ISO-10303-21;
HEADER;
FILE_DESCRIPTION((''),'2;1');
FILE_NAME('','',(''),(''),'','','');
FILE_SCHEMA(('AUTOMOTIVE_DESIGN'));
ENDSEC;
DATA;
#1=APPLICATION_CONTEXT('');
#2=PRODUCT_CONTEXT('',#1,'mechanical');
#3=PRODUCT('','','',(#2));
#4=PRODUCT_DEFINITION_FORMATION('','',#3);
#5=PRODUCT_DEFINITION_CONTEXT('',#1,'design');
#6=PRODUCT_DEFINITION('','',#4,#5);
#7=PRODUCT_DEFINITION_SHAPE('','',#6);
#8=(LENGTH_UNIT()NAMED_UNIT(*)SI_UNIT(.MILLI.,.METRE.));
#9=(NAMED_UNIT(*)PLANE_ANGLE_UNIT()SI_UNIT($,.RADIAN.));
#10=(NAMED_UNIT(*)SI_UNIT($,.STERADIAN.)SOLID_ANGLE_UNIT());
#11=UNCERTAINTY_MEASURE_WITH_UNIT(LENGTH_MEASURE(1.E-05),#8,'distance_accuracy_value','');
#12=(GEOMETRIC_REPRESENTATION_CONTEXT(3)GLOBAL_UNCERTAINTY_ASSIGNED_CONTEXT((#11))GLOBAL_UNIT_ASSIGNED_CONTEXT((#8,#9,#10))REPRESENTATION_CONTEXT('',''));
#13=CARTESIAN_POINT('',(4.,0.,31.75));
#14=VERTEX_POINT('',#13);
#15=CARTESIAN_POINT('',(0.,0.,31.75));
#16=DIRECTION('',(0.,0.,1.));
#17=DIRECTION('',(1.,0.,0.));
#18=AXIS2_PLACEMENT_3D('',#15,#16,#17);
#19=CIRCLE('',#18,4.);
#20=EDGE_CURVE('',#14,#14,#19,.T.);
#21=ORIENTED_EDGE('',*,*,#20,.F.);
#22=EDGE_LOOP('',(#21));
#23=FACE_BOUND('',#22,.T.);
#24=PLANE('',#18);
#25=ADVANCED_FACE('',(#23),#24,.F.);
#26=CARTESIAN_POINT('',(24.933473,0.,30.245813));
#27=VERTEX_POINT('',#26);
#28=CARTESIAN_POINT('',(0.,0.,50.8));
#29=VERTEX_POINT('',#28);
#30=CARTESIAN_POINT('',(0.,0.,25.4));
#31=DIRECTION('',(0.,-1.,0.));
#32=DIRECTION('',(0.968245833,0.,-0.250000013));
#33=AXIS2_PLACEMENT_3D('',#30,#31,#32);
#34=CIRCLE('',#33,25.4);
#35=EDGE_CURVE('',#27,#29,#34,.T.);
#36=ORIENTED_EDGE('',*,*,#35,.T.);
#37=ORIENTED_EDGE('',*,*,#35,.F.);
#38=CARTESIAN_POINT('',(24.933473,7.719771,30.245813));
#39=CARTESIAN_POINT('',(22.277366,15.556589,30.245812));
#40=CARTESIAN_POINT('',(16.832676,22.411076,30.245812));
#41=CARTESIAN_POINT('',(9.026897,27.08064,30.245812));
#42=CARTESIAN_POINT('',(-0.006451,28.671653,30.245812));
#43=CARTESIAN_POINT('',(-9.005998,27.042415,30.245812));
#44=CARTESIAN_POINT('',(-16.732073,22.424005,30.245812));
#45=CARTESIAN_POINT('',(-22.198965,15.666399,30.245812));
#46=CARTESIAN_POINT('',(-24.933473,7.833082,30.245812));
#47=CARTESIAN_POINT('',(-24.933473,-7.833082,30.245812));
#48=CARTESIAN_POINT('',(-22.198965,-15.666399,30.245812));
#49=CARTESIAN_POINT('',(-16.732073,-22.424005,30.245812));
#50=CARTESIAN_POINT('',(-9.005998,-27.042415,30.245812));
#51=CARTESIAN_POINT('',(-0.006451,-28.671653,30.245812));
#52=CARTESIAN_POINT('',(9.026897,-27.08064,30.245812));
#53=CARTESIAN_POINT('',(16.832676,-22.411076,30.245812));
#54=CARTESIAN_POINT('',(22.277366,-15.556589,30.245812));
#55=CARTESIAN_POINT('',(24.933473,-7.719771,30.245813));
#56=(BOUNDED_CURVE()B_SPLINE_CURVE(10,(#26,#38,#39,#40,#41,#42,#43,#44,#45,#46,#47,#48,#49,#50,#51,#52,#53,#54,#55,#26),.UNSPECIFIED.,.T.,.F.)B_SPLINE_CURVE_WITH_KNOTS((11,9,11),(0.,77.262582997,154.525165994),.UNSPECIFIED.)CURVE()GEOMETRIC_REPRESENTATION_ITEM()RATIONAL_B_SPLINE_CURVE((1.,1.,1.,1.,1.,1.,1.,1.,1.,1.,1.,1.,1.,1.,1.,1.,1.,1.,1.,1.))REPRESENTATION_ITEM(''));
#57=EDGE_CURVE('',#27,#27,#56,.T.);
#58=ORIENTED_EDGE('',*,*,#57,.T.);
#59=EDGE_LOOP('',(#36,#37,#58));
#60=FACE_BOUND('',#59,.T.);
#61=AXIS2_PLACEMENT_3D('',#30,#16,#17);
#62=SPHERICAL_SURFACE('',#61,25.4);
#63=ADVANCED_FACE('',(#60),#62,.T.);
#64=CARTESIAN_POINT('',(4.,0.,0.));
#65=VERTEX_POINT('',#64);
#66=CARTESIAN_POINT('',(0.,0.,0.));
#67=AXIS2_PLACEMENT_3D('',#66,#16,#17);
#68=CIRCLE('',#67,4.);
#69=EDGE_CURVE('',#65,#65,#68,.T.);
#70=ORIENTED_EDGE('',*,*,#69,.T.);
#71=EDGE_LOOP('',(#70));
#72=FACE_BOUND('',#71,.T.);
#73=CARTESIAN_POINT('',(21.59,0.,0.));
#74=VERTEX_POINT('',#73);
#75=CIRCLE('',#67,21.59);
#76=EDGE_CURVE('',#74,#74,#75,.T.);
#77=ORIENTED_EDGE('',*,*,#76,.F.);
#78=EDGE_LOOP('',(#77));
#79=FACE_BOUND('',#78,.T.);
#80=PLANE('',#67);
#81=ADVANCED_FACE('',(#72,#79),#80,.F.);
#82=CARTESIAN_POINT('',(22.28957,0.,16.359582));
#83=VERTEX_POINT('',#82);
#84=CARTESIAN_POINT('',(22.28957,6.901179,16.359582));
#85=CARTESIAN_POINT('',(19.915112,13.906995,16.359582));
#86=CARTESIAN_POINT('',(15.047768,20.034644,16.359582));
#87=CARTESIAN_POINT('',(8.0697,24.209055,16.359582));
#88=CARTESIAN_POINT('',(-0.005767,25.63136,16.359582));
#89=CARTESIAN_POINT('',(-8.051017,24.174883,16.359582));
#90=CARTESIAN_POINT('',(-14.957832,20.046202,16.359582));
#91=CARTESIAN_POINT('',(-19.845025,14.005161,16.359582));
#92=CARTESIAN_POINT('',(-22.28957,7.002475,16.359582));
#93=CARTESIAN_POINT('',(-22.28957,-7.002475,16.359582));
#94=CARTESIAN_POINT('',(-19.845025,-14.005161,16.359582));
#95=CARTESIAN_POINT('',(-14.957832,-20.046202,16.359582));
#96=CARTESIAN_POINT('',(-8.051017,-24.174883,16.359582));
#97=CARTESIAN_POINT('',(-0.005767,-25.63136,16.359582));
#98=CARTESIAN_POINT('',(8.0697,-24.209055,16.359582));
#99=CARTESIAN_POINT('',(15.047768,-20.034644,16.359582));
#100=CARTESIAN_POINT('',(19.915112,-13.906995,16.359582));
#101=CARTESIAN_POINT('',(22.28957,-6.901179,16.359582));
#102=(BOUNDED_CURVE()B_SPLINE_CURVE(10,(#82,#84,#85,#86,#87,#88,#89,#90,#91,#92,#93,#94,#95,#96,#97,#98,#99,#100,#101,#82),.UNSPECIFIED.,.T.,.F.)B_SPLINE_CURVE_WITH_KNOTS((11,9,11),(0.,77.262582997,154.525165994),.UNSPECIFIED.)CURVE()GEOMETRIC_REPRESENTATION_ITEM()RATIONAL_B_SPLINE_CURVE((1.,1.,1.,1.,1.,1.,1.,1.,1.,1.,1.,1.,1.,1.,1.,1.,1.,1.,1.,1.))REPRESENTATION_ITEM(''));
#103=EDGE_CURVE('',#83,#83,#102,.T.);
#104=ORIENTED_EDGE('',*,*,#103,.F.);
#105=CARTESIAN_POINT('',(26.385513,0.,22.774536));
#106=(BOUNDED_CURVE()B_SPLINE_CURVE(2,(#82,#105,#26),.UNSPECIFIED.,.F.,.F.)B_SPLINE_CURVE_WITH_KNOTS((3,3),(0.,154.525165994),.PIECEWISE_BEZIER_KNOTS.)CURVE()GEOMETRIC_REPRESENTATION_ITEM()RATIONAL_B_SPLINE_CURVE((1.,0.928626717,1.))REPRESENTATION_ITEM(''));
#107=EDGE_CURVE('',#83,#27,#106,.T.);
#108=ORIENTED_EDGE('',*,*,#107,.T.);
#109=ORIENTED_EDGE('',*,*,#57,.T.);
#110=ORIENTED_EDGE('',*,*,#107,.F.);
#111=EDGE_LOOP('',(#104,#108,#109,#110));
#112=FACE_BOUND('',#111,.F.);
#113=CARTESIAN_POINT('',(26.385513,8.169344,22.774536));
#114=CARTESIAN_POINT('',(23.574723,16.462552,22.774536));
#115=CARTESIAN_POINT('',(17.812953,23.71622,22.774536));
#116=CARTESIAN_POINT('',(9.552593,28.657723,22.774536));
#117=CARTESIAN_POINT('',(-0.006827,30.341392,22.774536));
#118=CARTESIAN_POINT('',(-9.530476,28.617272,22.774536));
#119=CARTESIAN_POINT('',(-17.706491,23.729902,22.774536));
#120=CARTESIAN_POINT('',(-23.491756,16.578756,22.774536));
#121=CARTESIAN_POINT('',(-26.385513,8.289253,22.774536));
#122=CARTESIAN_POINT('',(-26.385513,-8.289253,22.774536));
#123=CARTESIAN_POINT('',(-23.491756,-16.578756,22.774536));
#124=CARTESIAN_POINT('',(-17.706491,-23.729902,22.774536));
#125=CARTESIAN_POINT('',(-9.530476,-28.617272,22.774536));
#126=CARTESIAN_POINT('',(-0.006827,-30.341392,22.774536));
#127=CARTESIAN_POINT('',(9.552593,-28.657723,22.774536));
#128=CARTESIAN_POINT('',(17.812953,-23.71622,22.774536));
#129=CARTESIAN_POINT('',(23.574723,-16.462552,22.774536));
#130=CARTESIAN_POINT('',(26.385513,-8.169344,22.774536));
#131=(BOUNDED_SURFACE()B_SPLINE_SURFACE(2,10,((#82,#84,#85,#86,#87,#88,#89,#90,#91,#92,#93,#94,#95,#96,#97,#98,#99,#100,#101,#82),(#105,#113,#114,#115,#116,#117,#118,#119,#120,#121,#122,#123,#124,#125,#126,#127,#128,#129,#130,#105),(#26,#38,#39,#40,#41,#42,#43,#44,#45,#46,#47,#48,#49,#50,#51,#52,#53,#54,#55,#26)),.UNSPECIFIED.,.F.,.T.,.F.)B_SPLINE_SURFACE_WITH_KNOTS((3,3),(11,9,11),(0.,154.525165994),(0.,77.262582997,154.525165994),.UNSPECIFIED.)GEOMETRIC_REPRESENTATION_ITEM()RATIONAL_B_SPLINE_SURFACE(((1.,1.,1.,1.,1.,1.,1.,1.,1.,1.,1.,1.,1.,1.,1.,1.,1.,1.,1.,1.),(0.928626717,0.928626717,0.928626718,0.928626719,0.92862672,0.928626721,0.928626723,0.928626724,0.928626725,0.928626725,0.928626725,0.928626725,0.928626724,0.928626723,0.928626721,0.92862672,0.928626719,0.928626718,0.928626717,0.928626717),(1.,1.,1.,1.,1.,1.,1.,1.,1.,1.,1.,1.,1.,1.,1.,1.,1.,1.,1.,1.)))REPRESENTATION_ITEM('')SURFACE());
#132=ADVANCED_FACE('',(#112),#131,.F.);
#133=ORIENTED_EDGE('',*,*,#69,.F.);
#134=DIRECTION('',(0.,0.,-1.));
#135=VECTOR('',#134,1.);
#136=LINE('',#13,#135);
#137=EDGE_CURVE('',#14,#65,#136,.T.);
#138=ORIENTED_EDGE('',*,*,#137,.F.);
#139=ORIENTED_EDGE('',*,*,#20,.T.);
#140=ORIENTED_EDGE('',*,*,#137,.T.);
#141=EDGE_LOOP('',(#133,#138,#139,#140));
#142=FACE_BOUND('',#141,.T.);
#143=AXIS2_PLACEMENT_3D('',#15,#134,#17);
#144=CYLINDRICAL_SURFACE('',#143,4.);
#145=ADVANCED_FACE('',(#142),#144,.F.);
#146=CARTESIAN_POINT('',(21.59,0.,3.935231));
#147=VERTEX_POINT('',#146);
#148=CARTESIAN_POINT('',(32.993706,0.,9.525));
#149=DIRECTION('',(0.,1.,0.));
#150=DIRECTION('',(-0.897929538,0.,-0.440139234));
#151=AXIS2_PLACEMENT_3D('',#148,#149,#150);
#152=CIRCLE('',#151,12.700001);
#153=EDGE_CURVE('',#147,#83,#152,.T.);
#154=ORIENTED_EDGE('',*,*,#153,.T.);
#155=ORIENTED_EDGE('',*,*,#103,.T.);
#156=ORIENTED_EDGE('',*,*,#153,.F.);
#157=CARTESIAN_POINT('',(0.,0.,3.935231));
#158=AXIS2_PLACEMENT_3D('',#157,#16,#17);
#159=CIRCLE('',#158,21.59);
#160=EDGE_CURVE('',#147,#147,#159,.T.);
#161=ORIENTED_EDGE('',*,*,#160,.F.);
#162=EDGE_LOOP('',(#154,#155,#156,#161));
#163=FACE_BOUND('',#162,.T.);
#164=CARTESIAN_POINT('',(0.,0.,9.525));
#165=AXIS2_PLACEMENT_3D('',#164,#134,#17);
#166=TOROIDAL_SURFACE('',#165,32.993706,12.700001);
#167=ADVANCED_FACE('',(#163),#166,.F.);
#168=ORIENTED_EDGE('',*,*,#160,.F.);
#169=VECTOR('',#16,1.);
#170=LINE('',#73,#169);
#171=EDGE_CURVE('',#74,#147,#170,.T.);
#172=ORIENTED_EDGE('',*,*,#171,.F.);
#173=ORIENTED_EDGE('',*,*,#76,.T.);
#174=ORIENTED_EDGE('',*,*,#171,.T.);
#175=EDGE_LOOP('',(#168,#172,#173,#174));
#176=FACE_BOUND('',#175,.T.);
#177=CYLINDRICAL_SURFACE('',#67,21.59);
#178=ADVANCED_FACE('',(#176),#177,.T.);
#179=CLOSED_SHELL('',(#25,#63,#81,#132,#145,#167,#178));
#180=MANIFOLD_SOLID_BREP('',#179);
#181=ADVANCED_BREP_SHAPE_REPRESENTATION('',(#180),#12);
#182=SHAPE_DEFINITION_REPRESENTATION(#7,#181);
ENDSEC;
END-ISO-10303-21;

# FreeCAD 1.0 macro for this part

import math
import FreeCAD as App
import Part
import Sketcher
Q = App.Units.Quantity


def edges_at(feature, points):
    """Names of the edges that pass closest to the given points."""
    edges = feature.Shape.Edges
    near = lambda p: min(range(len(edges)), key=lambda i: edges[i].distToShape(Part.Vertex(*p))[0])
    return sorted({f"Edge{near(p) + 1}" for p in points})

doc = App.newDocument("Part")
body = doc.addObject("PartDesign::Body", "Body")

# Sketch on XZ plane
sketch1 = body.newObject("Sketcher::SketchObject", "Sketch")
sketch1.AttachmentSupport = (doc.getObject("XZ_Plane"), [""])
sketch1.MapMode = "FlatFace"
sketch1.addGeometry([
    Part.ArcOfCircle(Part.Circle(App.Vector(32.993706, 9.525, 0), App.Vector(0, 0, 1), 12.700001), math.radians(131.409628), math.radians(206.112765)),  # 0
    Part.ArcOfCircle(Part.Circle(App.Vector(0, 25.4, 0), App.Vector(0, 0, 1), 25.4), math.radians(-14.477513), math.radians(90)),  # 1
    Part.LineSegment(App.Vector(0, 50.8, 0), App.Vector(0, 31.75, 0)),  # 2
    Part.LineSegment(App.Vector(0, 31.75, 0), App.Vector(4, 31.75, 0)),  # 3
    Part.LineSegment(App.Vector(4, 31.75, 0), App.Vector(4, 0, 0)),  # 4
    Part.LineSegment(App.Vector(4, 0, 0), App.Vector(21.59, 0, 0)),  # 5
    Part.LineSegment(App.Vector(21.59, 0, 0), App.Vector(21.59, 3.935231, 0)),  # 6
], False)
sketch1.addConstraint([
    Sketcher.Constraint("Coincident", 0, 1, 1, 1),
    Sketcher.Constraint("Coincident", 1, 2, 2, 1),
    Sketcher.Constraint("Coincident", 2, 2, 3, 1),
    Sketcher.Constraint("Coincident", 3, 2, 4, 1),
    Sketcher.Constraint("Coincident", 4, 2, 5, 1),
    Sketcher.Constraint("Coincident", 5, 2, 6, 1),
    Sketcher.Constraint("Coincident", 6, 2, 0, 2),
    Sketcher.Constraint("Vertical", 2),
    Sketcher.Constraint("Horizontal", 3),
    Sketcher.Constraint("Vertical", 4),
    Sketcher.Constraint("Horizontal", 5),
    Sketcher.Constraint("Vertical", 6),
    Sketcher.Constraint("PointOnObject", 1, 3, -2),
    Sketcher.Constraint("PointOnObject", 1, 2, -2),
    Sketcher.Constraint("PointOnObject", 4, 2, -1),
    Sketcher.Constraint("Radius", 1, Q("1 in")),
    Sketcher.Constraint("Radius", 0, Q("0.5000001 in")),
    Sketcher.Constraint("DistanceY", -1, 1, 1, 3, Q("1 in")),
    Sketcher.Constraint("DistanceY", 2, 2, 2, 1, Q("0.75 in")),
    Sketcher.Constraint("DistanceY", 0, 1, 2, 2, Q("0.5 in")),
    Sketcher.Constraint("DistanceX", -1, 1, 5, 2, Q("0.85 in")),
    Sketcher.Constraint("DistanceY", -1, 1, 0, 3, Q("0.375 in")),
    Sketcher.Constraint("DistanceX", 3, 1, 3, 2, 4.0),
])
revolution = body.newObject("PartDesign::Revolution", "Revolution")
revolution.Profile = sketch1
revolution.ReferenceAxis = (sketch1, ["V_Axis"])
revolution.Angle = 360
doc.recompute()

fillet = body.newObject("PartDesign::Fillet", "Fillet")
fillet.Base = (revolution, edges_at(revolution, [(-24.593, 0, 19.05)]))
fillet.Radius = Q("0.75 in")

doc.recompute()
